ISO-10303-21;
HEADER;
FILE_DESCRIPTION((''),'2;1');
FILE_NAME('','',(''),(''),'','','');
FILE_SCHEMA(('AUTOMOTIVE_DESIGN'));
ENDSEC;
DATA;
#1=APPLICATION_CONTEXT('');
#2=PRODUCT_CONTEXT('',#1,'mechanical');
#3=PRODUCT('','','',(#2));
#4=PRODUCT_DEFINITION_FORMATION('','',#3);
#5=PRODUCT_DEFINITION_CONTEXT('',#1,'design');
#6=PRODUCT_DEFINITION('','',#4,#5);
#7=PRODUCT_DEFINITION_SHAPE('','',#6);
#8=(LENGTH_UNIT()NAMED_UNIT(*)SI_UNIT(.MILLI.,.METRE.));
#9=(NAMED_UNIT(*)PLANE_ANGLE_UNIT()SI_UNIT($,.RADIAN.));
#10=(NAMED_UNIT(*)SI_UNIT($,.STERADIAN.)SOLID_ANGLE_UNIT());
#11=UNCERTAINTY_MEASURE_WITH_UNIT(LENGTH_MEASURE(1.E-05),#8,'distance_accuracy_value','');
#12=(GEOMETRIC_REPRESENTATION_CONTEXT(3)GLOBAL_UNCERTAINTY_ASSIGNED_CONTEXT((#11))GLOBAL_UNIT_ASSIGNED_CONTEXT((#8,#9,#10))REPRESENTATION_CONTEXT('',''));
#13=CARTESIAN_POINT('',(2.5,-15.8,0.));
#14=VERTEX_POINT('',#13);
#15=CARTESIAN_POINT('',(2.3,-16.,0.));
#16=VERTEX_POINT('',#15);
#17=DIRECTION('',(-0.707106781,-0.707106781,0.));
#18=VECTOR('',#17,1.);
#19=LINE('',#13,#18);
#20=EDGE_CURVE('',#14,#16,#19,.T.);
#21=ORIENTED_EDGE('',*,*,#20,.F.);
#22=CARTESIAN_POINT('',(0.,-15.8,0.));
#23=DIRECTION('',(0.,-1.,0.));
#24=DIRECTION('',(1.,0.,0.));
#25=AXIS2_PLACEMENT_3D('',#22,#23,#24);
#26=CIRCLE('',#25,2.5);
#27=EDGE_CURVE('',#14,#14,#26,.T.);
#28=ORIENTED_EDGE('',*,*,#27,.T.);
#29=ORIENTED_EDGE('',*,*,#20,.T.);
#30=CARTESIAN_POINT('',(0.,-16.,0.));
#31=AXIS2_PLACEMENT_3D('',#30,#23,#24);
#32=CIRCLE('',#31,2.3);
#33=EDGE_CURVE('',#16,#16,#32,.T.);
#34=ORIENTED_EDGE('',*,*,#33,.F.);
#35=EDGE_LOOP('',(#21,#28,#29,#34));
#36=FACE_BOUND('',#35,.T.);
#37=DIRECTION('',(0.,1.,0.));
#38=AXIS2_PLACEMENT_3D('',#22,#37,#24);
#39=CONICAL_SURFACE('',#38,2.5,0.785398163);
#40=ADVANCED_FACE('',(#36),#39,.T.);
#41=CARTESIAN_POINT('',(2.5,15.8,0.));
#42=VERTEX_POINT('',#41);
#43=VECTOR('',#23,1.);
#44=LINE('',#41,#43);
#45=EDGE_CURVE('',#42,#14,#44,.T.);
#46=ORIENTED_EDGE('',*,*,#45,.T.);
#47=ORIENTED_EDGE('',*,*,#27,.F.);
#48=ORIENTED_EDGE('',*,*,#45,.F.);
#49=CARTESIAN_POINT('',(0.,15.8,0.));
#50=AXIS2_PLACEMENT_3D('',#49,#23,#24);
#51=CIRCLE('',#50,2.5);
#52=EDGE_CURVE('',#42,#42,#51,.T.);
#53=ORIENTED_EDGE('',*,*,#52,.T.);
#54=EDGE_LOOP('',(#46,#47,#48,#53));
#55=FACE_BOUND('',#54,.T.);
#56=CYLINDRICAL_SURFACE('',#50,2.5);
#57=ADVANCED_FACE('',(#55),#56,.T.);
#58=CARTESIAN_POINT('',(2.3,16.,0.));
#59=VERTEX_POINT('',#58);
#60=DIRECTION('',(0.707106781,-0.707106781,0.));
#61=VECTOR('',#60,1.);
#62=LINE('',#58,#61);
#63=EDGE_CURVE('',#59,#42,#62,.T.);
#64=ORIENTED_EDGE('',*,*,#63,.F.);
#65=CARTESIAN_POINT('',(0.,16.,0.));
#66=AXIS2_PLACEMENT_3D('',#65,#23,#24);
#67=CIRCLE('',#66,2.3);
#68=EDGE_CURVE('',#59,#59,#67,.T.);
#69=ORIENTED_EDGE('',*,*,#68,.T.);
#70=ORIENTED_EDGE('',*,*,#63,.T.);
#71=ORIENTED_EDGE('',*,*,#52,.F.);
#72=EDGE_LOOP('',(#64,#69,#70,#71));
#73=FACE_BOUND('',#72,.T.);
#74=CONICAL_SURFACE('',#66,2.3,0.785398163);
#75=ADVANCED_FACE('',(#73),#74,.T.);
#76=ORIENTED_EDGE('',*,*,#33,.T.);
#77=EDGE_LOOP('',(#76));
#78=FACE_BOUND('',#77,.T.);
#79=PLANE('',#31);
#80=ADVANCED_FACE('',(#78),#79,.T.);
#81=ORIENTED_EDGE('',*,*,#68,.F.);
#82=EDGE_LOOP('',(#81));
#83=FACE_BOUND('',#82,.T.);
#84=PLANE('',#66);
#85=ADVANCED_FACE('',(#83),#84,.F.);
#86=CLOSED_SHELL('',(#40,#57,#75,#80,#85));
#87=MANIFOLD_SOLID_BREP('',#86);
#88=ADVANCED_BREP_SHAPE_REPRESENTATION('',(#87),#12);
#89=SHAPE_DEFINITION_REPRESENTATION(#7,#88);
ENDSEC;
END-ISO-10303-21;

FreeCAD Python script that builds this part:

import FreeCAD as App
import Part
import Sketcher
from FreeCAD import Vector

doc = App.newDocument("Part")
body = doc.addObject("PartDesign::Body", "Body")

sketch1 = body.newObject("Sketcher::SketchObject", "Sketch")
sketch1.AttachmentSupport = (doc.getObject("XY_Plane"), [""])
sketch1.MapMode = "FlatFace"
sketch1.addGeometry([
    Part.LineSegment(Vector(0, 16, 0), Vector(0, -16, 0)),
    Part.LineSegment(Vector(0, -16, 0), Vector(2.3, -16, 0)),
    Part.LineSegment(Vector(2.3, -16, 0), Vector(2.5, -15.8, 0)),
    Part.LineSegment(Vector(2.5, -15.8, 0), Vector(2.5, 15.8, 0)),
    Part.LineSegment(Vector(2.5, 15.8, 0), Vector(2.3, 16, 0)),
    Part.LineSegment(Vector(2.3, 16, 0), Vector(0, 16, 0)),
], False)
sketch1.addConstraint([
    Sketcher.Constraint("Coincident", 0, 2, 1, 1),
    Sketcher.Constraint("Coincident", 1, 2, 2, 1),
    Sketcher.Constraint("Coincident", 2, 2, 3, 1),
    Sketcher.Constraint("Coincident", 3, 2, 4, 1),
    Sketcher.Constraint("Coincident", 4, 2, 5, 1),
    Sketcher.Constraint("Coincident", 5, 2, 0, 1),
    Sketcher.Constraint("Vertical", 0),
    Sketcher.Constraint("Horizontal", 1),
    Sketcher.Constraint("Vertical", 3),
    Sketcher.Constraint("Horizontal", 5),
    Sketcher.Constraint("Symmetric", 0, 2, 5, 2, -1, 1),
    Sketcher.Constraint("Perpendicular", 2, 4),
    Sketcher.Constraint("Vertical", 1, 2, 4, 2),
    Sketcher.Constraint("Equal", 2, 4),
    Sketcher.Constraint("DistanceY", 0, 2, 0, 1, 32.0),
    Sketcher.Constraint("DistanceX", 1, 1, 1, 2, 2.3),
    Sketcher.Constraint("DistanceY", 3, 1, 3, 2, 31.6),
])
revolution = body.newObject("PartDesign::Revolution", "Revolution")
revolution.Profile = sketch1
revolution.ReferenceAxis = (sketch1, ["V_Axis"])
revolution.Angle = 360

doc.recompute()
